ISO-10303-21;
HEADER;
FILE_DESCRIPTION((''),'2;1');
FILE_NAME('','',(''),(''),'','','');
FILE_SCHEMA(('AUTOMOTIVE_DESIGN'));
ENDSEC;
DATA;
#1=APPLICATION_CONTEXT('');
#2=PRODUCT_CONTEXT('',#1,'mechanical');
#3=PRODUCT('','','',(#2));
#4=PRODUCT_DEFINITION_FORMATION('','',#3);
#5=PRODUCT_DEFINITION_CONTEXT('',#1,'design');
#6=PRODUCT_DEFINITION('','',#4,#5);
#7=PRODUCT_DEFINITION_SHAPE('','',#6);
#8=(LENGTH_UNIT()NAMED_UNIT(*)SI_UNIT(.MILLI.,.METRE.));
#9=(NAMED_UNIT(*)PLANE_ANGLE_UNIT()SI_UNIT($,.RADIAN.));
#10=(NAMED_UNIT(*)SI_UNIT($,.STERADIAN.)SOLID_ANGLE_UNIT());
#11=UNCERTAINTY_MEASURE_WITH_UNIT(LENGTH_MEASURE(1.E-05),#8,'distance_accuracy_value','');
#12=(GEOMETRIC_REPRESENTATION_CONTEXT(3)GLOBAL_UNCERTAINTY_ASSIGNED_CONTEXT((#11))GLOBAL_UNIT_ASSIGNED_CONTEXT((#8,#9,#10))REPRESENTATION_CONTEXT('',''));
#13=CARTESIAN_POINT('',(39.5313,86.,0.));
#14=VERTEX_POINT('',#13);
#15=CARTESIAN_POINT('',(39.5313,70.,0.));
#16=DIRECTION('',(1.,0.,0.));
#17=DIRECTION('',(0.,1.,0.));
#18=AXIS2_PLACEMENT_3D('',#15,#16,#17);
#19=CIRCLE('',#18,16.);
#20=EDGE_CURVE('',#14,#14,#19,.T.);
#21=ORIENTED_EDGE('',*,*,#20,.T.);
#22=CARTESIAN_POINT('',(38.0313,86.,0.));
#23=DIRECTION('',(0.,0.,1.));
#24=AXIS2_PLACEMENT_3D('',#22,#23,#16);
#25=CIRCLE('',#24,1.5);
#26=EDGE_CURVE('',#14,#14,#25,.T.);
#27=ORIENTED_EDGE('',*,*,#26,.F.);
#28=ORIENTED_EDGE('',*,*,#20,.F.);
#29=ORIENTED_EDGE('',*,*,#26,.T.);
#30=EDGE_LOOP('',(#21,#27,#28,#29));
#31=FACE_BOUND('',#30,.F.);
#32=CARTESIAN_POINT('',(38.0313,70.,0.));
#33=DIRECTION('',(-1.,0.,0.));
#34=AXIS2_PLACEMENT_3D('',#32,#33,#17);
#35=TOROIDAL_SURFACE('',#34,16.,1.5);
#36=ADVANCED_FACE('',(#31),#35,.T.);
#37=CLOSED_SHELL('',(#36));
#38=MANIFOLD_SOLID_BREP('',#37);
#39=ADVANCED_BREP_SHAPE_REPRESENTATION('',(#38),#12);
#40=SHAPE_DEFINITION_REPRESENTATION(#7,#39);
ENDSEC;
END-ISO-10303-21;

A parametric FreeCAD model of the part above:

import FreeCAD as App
import Part
import Sketcher

V = App.Vector

doc = App.newDocument("Part")
body = doc.addObject("PartDesign::Body", "Body")

sketch1 = body.newObject("Sketcher::SketchObject", "Sketch")
sketch1.AttachmentSupport = (doc.getObject("XY_Plane"), [""])
sketch1.MapMode = "FlatFace"
sketch1.addGeometry(Part.Circle(V(38, 86, 0), V(0, 0, 1), 1.5), False)
sketch1.addGeometry(Part.LineSegment(V(38, 70, 0), V(48, 70, 0)), True)
sketch1.addConstraint(Sketcher.Constraint("Horizontal", 1))
sketch1.addConstraint(Sketcher.Constraint("Vertical", 0, 3, 1, 1))
sketch1.addConstraint(Sketcher.Constraint("Diameter", 0, 3.0))
sketch1.addConstraint(Sketcher.Constraint("DistanceY", 1, 1, 0, 3, 16.0))
sketch1.addConstraint(Sketcher.Constraint("DistanceX", 1, 1, 1, 2, 10.0))
sketch1.addConstraint(Sketcher.Constraint("DistanceY", -1, 1, 0, 3, 86.0))
sketch1.addConstraint(Sketcher.Constraint("DistanceX", -1, 1, 0, 3, 38.0313))
revolution = body.newObject("PartDesign::Revolution", "Revolution")
revolution.Profile = sketch1
revolution.ReferenceAxis = (sketch1, ["Axis0"])
revolution.Angle = 360

doc.recompute()
